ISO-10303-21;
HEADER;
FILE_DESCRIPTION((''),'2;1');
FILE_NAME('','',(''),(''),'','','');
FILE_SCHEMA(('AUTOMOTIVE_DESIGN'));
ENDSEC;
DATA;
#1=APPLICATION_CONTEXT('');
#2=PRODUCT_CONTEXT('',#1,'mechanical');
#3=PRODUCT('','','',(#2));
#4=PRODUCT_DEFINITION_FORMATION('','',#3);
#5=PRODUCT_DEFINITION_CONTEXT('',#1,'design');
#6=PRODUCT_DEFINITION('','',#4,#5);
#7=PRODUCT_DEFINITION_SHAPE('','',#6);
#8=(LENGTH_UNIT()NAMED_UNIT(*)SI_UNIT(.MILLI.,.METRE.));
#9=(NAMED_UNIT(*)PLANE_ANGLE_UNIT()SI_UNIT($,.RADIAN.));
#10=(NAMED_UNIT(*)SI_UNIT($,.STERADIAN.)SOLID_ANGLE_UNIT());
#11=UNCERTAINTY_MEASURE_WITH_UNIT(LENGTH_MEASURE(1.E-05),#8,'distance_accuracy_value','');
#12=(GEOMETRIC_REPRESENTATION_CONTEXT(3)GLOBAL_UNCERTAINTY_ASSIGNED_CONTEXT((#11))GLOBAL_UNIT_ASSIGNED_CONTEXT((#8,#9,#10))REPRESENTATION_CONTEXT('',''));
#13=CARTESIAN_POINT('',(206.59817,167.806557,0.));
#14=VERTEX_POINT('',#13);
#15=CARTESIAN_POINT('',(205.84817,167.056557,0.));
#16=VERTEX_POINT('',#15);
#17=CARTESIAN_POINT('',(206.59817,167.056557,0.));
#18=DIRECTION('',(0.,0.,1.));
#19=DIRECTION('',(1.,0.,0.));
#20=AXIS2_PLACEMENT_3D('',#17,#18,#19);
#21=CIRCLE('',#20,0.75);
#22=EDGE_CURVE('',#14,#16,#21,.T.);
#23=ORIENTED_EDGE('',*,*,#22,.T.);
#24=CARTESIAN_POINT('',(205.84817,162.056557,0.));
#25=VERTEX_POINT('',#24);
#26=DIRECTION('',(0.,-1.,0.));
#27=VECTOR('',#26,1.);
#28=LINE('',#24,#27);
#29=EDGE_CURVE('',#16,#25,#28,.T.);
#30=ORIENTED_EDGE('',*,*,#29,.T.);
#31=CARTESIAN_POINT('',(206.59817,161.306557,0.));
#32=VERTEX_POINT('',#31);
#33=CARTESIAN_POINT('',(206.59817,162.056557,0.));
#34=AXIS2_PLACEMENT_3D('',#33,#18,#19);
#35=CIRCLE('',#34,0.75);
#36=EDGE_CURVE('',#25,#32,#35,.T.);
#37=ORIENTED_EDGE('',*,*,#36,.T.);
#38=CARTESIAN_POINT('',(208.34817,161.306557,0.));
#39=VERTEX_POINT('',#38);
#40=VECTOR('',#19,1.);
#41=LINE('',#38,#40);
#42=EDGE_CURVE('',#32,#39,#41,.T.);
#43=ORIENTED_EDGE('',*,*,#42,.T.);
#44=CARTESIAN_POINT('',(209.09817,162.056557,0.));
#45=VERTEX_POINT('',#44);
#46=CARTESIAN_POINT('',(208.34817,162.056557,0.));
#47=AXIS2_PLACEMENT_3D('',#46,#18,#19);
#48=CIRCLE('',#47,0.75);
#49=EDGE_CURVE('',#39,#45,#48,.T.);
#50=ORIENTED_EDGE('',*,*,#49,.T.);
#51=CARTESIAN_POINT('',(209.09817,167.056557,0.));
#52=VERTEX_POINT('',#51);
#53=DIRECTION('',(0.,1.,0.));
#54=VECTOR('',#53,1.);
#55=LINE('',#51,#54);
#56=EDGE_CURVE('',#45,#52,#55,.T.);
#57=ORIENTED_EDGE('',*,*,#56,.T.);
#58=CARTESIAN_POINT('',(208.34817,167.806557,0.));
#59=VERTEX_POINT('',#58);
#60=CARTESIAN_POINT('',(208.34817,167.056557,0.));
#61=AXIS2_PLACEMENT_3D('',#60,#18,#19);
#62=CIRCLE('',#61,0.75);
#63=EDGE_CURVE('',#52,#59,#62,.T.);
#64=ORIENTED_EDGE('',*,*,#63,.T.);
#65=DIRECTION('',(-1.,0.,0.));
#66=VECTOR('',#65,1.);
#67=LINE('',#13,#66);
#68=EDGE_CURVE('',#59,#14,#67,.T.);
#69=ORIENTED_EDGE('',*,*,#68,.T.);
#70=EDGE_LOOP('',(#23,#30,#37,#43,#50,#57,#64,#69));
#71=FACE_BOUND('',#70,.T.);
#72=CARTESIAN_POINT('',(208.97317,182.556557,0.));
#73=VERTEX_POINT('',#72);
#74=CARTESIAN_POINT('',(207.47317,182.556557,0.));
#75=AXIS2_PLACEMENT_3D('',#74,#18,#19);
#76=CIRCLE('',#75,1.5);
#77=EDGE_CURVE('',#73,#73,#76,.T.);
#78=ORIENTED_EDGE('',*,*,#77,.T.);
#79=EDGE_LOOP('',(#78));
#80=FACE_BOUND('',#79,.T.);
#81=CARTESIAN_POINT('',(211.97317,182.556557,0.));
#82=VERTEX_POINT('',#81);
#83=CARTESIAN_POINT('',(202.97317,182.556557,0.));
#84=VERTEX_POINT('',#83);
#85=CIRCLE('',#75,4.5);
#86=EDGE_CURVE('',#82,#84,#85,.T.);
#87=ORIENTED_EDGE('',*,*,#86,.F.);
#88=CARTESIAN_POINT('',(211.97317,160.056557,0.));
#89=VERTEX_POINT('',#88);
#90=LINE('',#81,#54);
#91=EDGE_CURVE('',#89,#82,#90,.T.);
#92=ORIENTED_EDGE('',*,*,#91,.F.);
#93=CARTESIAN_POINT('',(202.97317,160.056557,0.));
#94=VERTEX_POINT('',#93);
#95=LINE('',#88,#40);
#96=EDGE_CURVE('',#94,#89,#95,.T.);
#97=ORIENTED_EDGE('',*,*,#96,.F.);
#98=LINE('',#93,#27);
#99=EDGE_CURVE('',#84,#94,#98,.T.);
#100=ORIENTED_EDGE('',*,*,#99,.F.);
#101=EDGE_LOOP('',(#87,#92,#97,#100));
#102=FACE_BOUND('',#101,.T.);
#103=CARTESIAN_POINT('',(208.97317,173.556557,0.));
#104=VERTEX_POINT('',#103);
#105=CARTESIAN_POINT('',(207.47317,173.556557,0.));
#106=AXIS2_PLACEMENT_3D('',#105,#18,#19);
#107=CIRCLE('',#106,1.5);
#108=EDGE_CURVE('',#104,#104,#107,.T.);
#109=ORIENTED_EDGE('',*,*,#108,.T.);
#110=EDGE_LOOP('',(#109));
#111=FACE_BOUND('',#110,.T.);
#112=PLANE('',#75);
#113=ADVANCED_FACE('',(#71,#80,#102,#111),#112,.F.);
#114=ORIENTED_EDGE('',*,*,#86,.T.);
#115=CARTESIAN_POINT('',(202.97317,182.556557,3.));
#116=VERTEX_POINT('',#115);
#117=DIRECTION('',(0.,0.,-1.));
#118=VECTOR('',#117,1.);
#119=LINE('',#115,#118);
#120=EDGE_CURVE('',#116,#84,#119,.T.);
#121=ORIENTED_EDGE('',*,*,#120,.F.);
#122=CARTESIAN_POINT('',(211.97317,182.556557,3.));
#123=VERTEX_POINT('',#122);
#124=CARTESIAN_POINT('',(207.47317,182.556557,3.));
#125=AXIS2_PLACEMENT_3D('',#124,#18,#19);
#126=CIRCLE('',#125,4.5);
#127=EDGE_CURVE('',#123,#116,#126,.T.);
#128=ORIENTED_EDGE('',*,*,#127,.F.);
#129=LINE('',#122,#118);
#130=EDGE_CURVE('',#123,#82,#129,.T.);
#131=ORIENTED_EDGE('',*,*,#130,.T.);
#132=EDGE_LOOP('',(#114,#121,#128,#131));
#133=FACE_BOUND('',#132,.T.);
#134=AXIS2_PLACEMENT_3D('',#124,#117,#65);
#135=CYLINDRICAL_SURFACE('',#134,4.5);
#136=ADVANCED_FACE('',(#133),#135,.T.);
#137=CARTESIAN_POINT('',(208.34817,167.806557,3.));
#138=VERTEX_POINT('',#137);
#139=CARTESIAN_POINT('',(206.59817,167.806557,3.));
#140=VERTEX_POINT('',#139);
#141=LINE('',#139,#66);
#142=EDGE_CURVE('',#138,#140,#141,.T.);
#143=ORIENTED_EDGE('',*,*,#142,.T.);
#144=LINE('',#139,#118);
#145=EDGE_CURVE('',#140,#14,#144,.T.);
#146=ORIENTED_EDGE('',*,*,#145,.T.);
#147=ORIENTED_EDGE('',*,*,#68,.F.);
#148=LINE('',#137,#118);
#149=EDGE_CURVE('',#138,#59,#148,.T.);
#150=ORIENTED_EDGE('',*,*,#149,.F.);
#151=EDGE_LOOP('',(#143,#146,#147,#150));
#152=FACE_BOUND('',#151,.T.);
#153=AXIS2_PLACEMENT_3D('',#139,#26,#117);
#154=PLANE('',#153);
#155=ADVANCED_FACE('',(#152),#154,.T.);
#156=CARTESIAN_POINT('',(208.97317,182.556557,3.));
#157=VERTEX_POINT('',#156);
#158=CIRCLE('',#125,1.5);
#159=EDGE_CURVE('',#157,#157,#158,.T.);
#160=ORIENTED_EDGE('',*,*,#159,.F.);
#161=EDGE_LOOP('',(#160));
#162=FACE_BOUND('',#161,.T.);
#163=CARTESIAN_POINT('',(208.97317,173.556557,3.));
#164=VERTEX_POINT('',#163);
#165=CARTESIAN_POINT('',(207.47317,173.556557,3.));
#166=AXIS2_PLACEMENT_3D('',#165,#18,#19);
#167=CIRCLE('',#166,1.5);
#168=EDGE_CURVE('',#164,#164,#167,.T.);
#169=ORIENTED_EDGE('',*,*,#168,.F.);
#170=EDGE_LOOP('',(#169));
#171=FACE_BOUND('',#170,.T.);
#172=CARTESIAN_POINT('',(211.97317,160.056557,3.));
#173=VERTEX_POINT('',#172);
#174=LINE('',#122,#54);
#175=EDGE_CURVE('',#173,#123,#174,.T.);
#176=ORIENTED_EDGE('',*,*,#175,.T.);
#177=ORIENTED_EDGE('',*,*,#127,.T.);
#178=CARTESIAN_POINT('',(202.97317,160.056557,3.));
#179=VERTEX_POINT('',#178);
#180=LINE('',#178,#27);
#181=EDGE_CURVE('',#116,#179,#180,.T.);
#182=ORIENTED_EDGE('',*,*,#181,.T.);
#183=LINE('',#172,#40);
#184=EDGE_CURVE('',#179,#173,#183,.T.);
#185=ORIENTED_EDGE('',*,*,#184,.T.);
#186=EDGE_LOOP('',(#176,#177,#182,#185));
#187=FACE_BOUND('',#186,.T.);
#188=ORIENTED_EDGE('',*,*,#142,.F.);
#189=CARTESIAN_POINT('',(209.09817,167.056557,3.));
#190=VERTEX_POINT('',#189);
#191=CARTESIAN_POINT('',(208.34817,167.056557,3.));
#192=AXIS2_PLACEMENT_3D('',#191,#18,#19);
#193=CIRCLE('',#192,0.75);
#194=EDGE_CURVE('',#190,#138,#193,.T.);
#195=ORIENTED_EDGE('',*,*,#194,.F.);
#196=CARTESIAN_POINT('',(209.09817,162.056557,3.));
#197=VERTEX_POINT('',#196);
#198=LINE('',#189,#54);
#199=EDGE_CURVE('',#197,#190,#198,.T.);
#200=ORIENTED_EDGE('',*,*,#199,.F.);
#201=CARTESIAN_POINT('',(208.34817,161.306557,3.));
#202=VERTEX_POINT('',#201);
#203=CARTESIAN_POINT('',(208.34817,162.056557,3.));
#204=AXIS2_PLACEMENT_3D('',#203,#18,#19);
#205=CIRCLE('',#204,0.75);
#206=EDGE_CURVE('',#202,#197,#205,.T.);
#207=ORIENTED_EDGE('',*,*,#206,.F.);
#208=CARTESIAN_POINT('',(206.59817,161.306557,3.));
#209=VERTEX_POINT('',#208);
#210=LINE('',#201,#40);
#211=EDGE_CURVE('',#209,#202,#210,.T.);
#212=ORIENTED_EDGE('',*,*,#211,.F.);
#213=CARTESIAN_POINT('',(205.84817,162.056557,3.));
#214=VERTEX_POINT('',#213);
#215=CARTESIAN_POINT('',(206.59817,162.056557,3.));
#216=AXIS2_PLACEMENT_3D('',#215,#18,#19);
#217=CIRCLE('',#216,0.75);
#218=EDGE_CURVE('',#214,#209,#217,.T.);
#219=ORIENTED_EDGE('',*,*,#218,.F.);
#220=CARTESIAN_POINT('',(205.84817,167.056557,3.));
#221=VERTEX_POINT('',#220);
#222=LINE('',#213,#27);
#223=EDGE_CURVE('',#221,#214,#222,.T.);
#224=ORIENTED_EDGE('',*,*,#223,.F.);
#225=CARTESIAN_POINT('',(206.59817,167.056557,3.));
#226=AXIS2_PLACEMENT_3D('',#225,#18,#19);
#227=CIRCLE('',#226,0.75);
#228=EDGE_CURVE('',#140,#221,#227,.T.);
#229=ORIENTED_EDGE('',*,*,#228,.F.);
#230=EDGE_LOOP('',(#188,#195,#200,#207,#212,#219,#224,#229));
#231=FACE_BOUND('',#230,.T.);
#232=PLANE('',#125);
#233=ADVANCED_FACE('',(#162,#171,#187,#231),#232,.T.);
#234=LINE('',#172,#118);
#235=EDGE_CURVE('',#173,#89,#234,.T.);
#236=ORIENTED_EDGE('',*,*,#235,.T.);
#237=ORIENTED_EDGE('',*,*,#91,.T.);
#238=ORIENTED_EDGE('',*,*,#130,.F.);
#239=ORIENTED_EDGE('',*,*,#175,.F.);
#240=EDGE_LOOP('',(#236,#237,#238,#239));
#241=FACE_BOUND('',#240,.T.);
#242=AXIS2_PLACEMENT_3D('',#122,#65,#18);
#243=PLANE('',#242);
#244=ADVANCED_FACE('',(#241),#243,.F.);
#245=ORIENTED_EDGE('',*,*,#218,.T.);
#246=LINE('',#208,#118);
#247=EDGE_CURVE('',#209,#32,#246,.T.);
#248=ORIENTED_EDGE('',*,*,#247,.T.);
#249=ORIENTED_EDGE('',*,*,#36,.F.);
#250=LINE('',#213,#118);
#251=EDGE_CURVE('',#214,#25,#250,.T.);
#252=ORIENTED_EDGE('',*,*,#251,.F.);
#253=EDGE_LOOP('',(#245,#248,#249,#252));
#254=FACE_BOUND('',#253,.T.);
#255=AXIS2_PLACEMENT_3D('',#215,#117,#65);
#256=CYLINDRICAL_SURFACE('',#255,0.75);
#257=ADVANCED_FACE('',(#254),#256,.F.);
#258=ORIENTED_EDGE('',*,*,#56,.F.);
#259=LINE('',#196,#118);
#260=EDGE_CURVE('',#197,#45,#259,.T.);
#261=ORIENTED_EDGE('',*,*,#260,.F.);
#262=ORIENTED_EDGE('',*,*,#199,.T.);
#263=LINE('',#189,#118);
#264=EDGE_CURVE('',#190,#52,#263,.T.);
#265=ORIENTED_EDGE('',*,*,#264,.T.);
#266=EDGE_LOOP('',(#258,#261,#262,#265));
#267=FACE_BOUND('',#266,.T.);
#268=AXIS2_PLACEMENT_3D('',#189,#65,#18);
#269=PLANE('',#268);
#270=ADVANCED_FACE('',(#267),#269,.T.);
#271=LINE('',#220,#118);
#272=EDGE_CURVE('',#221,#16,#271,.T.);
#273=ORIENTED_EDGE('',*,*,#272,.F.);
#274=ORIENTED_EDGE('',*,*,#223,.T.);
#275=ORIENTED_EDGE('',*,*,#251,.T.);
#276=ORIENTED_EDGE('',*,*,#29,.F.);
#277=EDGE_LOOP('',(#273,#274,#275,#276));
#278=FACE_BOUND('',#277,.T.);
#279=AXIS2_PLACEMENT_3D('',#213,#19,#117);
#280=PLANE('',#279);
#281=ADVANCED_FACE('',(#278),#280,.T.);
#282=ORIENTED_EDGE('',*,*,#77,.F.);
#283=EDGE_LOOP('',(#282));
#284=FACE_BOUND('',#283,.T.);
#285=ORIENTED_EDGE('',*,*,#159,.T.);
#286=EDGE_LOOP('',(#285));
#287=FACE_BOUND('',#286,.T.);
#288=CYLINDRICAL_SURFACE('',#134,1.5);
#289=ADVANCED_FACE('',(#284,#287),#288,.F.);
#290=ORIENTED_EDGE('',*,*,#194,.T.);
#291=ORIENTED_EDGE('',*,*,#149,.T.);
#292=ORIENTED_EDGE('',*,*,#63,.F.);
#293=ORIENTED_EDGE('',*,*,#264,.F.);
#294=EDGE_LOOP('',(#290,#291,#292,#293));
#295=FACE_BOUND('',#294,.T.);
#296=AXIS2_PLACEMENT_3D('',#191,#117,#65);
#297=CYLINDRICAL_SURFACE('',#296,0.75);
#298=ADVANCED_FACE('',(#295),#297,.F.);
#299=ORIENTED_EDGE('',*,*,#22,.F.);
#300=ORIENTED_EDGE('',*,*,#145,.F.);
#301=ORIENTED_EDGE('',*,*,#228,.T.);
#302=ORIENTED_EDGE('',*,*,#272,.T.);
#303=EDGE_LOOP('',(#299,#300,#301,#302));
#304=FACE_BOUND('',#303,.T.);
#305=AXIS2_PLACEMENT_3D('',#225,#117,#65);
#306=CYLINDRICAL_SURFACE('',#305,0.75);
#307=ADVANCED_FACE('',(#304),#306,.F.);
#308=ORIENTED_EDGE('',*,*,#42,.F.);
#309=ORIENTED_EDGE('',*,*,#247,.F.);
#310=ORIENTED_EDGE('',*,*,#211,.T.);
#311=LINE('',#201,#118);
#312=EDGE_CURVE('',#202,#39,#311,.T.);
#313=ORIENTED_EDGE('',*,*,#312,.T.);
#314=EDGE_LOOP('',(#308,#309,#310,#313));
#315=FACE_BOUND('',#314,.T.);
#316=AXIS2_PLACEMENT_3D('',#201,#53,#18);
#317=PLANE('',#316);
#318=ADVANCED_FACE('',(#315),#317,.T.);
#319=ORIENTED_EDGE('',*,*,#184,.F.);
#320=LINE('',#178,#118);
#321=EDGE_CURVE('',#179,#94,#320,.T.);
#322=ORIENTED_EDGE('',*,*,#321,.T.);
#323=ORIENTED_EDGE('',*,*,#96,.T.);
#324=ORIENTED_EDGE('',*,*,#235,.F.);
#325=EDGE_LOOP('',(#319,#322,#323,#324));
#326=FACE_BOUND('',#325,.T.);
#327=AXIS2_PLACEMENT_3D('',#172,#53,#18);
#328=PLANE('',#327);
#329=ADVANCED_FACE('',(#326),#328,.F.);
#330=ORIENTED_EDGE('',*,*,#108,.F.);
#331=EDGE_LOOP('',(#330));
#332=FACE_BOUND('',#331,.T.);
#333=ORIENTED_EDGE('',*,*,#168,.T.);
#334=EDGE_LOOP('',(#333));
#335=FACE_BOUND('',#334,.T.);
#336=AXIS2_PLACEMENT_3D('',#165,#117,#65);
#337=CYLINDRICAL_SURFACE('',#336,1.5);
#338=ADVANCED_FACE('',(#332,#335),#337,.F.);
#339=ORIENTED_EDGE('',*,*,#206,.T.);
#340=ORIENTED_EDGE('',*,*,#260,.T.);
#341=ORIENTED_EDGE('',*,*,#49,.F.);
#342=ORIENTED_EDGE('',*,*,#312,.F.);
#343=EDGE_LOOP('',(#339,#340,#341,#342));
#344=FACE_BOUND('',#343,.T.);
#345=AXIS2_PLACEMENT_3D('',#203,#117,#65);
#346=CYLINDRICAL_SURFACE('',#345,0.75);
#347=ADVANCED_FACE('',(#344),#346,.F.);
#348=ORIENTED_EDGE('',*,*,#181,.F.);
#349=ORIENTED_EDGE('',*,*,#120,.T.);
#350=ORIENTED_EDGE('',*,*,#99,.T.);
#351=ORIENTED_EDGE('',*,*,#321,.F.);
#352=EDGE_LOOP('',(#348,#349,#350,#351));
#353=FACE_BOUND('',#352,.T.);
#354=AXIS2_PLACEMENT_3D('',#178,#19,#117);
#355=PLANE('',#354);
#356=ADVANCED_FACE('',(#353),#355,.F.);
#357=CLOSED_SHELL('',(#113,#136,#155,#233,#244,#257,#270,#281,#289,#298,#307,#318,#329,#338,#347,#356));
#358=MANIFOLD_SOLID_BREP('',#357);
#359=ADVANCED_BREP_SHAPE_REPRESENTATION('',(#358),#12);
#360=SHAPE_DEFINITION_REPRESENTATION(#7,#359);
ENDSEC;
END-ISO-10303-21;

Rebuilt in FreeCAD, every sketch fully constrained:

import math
import FreeCAD as App
import Part
import Sketcher
from FreeCAD import Vector

doc = App.newDocument("Part")
body = doc.addObject("PartDesign::Body", "Body")

sketch1 = doc.addObject("Sketcher::SketchObject", "Sketch")
body.addObject(sketch1)
sketch1.AttachmentSupport = (doc.XY_Plane, [""])
sketch1.MapMode = "FlatFace"
sketch1.addGeometry([
    Part.LineSegment(Vector(202.97317, 182.556557, 0), Vector(202.97317, 160.056557, 0)),
    Part.LineSegment(Vector(202.97317, 160.056557, 0), Vector(211.97317, 160.056557, 0)),
    Part.LineSegment(Vector(211.97317, 160.056557, 0), Vector(211.97317, 182.556557, 0)),
    Part.ArcOfCircle(Part.Circle(Vector(207.47317, 182.556557, 0), Vector(0, 0, 1), 4.5), math.radians(0), math.radians(180)),
    Part.LineSegment(Vector(205.84817, 162.056557, 0), Vector(205.84817, 167.056557, 0)),
    Part.ArcOfCircle(Part.Circle(Vector(206.59817, 167.056557, 0), Vector(0, 0, 1), 0.75), math.radians(90), math.radians(180)),
    Part.LineSegment(Vector(206.59817, 167.806557, 0), Vector(208.34817, 167.806557, 0)),
    Part.ArcOfCircle(Part.Circle(Vector(208.34817, 167.056557, 0), Vector(0, 0, 1), 0.75), math.radians(0), math.radians(90)),
    Part.LineSegment(Vector(209.09817, 167.056557, 0), Vector(209.09817, 162.056557, 0)),
    Part.ArcOfCircle(Part.Circle(Vector(208.34817, 162.056557, 0), Vector(0, 0, 1), 0.75), math.radians(-90), math.radians(0)),
    Part.LineSegment(Vector(208.34817, 161.306557, 0), Vector(206.59817, 161.306557, 0)),
    Part.ArcOfCircle(Part.Circle(Vector(206.59817, 162.056557, 0), Vector(0, 0, 1), 0.75), math.radians(-180), math.radians(-90)),
    Part.Circle(Vector(207.47317, 173.556557, 0), Vector(0, 0, 1), 1.5),
    Part.Circle(Vector(207.47317, 182.556557, 0), Vector(0, 0, 1), 1.5),
], False)
sketch1.addConstraint([
    Sketcher.Constraint("Coincident", 0, 2, 1, 1),
    Sketcher.Constraint("Coincident", 1, 2, 2, 1),
    Sketcher.Constraint("Tangent", 2, 2, 3, 1),
    Sketcher.Constraint("Tangent", 3, 2, 0, 1),
    Sketcher.Constraint("Tangent", 4, 2, 5, 2),
    Sketcher.Constraint("Tangent", 5, 1, 6, 1),
    Sketcher.Constraint("Tangent", 6, 2, 7, 2),
    Sketcher.Constraint("Tangent", 7, 1, 8, 1),
    Sketcher.Constraint("Tangent", 8, 2, 9, 2),
    Sketcher.Constraint("Tangent", 9, 1, 10, 1),
    Sketcher.Constraint("Tangent", 10, 2, 11, 2),
    Sketcher.Constraint("Tangent", 11, 1, 4, 1),
    Sketcher.Constraint("Vertical", 0),
    Sketcher.Constraint("Horizontal", 1),
    Sketcher.Constraint("Vertical", 2),
    Sketcher.Constraint("Vertical", 4),
    Sketcher.Constraint("Horizontal", 6),
    Sketcher.Constraint("Vertical", 8),
    Sketcher.Constraint("Horizontal", 10),
    Sketcher.Constraint("Coincident", 13, 3, 3, 3),
    Sketcher.Constraint("Equal", 5, 7),
    Sketcher.Constraint("Equal", 7, 9),
    Sketcher.Constraint("Equal", 9, 11),
    Sketcher.Constraint("Equal", 12, 13),
    Sketcher.Constraint("Vertical", 3, 3, 12, 3),
    Sketcher.Constraint("Diameter", 12, 3.0),
    Sketcher.Constraint("Radius", 3, 4.5),
    Sketcher.Constraint("DistanceY", 4, 1, 4, 2, 5.0),
    Sketcher.Constraint("Radius", 5, 0.75),
    Sketcher.Constraint("DistanceY", 0, 2, 0, 1, 22.5),
    Sketcher.Constraint("DistanceY", 12, 3, 3, 3, 9.0),
    Sketcher.Constraint("DistanceY", 0, 2, 11, 3, 2.0),
    Sketcher.Constraint("DistanceX", 6, 1, 6, 2, 1.75),
    Sketcher.Constraint("DistanceX", 5, 3, 3, 3, 0.875),
    Sketcher.Constraint("DistanceX", -1, 1, 3, 3, 207.47317),
    Sketcher.Constraint("DistanceY", -1, 1, 3, 3, 182.556557),
])
pad1 = doc.addObject("PartDesign::Pad", "Pad")
body.addObject(pad1)
pad1.Profile = sketch1
pad1.Length = 3

doc.recompute()
